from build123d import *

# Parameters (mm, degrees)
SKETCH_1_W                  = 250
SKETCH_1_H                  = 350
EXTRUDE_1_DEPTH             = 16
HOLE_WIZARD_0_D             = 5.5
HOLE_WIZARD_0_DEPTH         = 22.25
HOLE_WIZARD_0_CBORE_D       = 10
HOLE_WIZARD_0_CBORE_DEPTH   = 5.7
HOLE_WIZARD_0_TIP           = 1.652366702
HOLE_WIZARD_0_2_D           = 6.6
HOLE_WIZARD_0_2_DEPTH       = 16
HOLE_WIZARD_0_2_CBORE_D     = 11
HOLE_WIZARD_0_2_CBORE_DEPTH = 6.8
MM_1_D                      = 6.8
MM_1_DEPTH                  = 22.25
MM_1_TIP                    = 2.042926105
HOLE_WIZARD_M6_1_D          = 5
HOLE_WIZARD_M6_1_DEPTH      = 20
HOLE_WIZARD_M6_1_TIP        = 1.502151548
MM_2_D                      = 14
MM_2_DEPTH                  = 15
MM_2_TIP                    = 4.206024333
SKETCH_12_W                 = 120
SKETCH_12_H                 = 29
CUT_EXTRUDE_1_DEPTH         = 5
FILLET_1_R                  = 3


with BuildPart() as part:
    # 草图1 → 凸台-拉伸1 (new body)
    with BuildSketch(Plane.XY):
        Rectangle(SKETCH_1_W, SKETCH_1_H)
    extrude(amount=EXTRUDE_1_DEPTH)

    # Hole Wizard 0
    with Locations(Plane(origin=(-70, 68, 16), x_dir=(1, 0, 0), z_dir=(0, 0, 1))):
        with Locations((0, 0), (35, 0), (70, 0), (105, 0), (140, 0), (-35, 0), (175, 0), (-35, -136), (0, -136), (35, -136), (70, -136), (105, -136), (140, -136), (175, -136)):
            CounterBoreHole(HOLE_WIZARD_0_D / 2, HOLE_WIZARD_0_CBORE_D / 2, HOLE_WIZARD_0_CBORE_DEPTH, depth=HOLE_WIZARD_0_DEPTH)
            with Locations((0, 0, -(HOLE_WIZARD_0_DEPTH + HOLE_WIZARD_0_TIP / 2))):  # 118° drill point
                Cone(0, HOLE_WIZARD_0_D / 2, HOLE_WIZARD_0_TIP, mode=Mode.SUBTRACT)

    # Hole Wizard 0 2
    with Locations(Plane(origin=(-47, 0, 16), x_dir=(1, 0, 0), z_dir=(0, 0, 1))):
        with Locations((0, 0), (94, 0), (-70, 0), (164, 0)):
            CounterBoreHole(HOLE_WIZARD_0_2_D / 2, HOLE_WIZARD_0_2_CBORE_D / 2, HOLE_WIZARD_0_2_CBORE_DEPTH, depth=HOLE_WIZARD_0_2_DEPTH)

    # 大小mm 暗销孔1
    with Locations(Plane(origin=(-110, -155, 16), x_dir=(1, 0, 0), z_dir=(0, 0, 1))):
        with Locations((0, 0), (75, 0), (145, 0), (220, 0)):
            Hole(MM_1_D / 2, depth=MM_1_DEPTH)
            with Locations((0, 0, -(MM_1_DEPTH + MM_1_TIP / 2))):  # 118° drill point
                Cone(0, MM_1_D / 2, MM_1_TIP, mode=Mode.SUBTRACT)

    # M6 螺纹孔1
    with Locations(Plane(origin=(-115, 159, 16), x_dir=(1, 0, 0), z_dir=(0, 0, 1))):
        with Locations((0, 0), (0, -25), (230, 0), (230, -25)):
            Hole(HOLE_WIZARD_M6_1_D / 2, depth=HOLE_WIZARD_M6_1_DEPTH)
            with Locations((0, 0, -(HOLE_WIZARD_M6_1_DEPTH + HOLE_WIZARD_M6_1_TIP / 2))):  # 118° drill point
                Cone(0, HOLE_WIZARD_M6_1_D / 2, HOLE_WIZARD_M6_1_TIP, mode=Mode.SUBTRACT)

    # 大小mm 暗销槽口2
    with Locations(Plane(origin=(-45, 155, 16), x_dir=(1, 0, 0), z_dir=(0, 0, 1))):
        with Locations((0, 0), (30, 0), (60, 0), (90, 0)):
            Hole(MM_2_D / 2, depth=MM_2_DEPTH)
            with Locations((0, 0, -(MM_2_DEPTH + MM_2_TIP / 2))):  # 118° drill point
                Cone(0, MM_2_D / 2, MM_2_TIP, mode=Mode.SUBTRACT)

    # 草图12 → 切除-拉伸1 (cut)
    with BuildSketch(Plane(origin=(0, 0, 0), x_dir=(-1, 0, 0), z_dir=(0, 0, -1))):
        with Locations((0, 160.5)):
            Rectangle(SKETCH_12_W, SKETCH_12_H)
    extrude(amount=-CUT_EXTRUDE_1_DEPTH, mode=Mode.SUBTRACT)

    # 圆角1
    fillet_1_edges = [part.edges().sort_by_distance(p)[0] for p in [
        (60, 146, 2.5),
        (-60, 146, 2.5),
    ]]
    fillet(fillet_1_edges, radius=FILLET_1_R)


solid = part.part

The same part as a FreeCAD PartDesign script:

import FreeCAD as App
import Part
import Sketcher
from FreeCAD import Vector


def edges_at(feature, points):
    """Names of the edges that pass closest to the given points."""
    edges = feature.Shape.Edges
    near = lambda p: min(range(len(edges)), key=lambda i: edges[i].distToShape(Part.Vertex(*p))[0])
    return sorted({f"Edge{near(p) + 1}" for p in points})

doc = App.newDocument("Part")
params = doc.addObject("Spreadsheet::Sheet", "Params")
for row, (alias, value) in enumerate([
    ("sketch1_width", "250 mm"),
    ("sketch1_height", "350 mm"),
    ("pad1_length", "16 mm"),
    ("sketch2_diameter", "5.5 mm"),
    ("hole_diameter", "5.5 mm"),
    ("hole_depth", "22.25 mm"),
    ("hole_cbore_diameter", "10 mm"),
    ("hole_cbore_depth", "5.7 mm"),
    ("sketch3_diameter", "6.6 mm"),
    ("hole2_diameter", "6.6 mm"),
    ("hole2_depth", "16 mm"),
    ("hole2_cbore_diameter", "11 mm"),
    ("hole2_cbore_depth", "6.8 mm"),
    ("sketch4_diameter", "6.8 mm"),
    ("hole3_diameter", "6.8 mm"),
    ("hole3_depth", "22.25 mm"),
    ("sketch5_diameter", "5 mm"),
    ("hole4_diameter", "5 mm"),
    ("hole4_depth", "20 mm"),
    ("sketch6_diameter", "14 mm"),
    ("hole5_diameter", "14 mm"),
    ("hole5_depth", "15 mm"),
    ("sketch7_width", "120 mm"),
    ("sketch7_height", "29 mm"),
    ("pocket1_length", "5 mm"),
    ("fillet_radius", "3 mm"),
], start=1):
    params.set(f"A{row}", alias)
    params.set(f"B{row}", "=" + value)
    params.setAlias(f"B{row}", alias)

body = doc.addObject("PartDesign::Body", "Body")

sketch1 = body.newObject("Sketcher::SketchObject", "Sketch")
sketch1.AttachmentSupport = (doc.getObject("XY_Plane"), [""])
sketch1.MapMode = "FlatFace"
sketch1.addGeometry([
    Part.LineSegment(Vector(-125, 175, 0), Vector(-125, -175, 0)),
    Part.LineSegment(Vector(-125, -175, 0), Vector(125, -175, 0)),
    Part.LineSegment(Vector(125, -175, 0), Vector(125, 175, 0)),
    Part.LineSegment(Vector(125, 175, 0), Vector(-125, 175, 0)),
], False)
sketch1.addConstraint([
    Sketcher.Constraint("Coincident", 0, 2, 1, 1),
    Sketcher.Constraint("Coincident", 1, 2, 2, 1),
    Sketcher.Constraint("Coincident", 2, 2, 3, 1),
    Sketcher.Constraint("Coincident", 3, 2, 0, 1),
    Sketcher.Constraint("Vertical", 0),
    Sketcher.Constraint("Horizontal", 1),
    Sketcher.Constraint("Vertical", 2),
    Sketcher.Constraint("Horizontal", 3),
    Sketcher.Constraint("Symmetric", 0, 2, 2, 2, -1, 1),
    Sketcher.Constraint("DistanceX", 1, 1, 1, 2, 250.0),
    Sketcher.Constraint("DistanceY", 0, 2, 0, 1, 350.0),
])
sketch1.setExpression("Constraints[9]", "Params.sketch1_width")
sketch1.setExpression("Constraints[10]", "Params.sketch1_height")
pad1 = body.newObject("PartDesign::Pad", "Pad")
pad1.Profile = sketch1
pad1.setExpression("Length", "Params.pad1_length")

sketch2 = body.newObject("Sketcher::SketchObject", "Sketch001")
sketch2.AttachmentSupport = (doc.getObject("XY_Plane"), [""])
sketch2.MapMode = "FlatFace"
sketch2.AttachmentOffset = App.Placement(Vector(0, 0, 16), App.Rotation())
sketch2.addGeometry([
    Part.Circle(Vector(-70, 68, 0), Vector(0, 0, 1), 2.8),
    Part.Circle(Vector(-35, 68, 0), Vector(0, 0, 1), 2.8),
    Part.Circle(Vector(0, 68, 0), Vector(0, 0, 1), 2.8),
    Part.Circle(Vector(35, 68, 0), Vector(0, 0, 1), 2.8),
    Part.Circle(Vector(70, 68, 0), Vector(0, 0, 1), 2.8),
    Part.Circle(Vector(-105, 68, 0), Vector(0, 0, 1), 2.8),
    Part.Circle(Vector(105, 68, 0), Vector(0, 0, 1), 2.8),
    Part.Circle(Vector(-105, -68, 0), Vector(0, 0, 1), 2.8),
    Part.Circle(Vector(-70, -68, 0), Vector(0, 0, 1), 2.8),
    Part.Circle(Vector(-35, -68, 0), Vector(0, 0, 1), 2.8),
    Part.Circle(Vector(0, -68, 0), Vector(0, 0, 1), 2.8),
    Part.Circle(Vector(35, -68, 0), Vector(0, 0, 1), 2.8),
    Part.Circle(Vector(70, -68, 0), Vector(0, 0, 1), 2.8),
    Part.Circle(Vector(105, -68, 0), Vector(0, 0, 1), 2.8),
], False)
sketch2.addConstraint([
    Sketcher.Constraint("Equal", 0, 1),
    Sketcher.Constraint("Equal", 1, 2),
    Sketcher.Constraint("Equal", 2, 3),
    Sketcher.Constraint("Equal", 3, 4),
    Sketcher.Constraint("Equal", 4, 5),
    Sketcher.Constraint("Equal", 5, 6),
    Sketcher.Constraint("Equal", 6, 7),
    Sketcher.Constraint("Equal", 7, 8),
    Sketcher.Constraint("Equal", 8, 9),
    Sketcher.Constraint("Equal", 9, 10),
    Sketcher.Constraint("Equal", 10, 11),
    Sketcher.Constraint("Equal", 11, 12),
    Sketcher.Constraint("Equal", 12, 13),
    Sketcher.Constraint("Symmetric", 6, 3, 7, 3, -1, 1),
    Sketcher.Constraint("Symmetric", 4, 3, 8, 3, -1, 1),
    Sketcher.Constraint("Symmetric", 3, 3, 9, 3, -1, 1),
    Sketcher.Constraint("Symmetric", 2, 3, 10, 3, -1, 1),
    Sketcher.Constraint("Symmetric", 1, 3, 11, 3, -1, 1),
    Sketcher.Constraint("Symmetric", 0, 3, 12, 3, -1, 1),
    Sketcher.Constraint("Symmetric", 5, 3, 13, 3, -1, 1),
    Sketcher.Constraint("Symmetric", 1, 3, 3, 3, -2),
    Sketcher.Constraint("Symmetric", 0, 3, 4, 3, -2),
    Sketcher.Constraint("Symmetric", 5, 3, 6, 3, -2),
    Sketcher.Constraint("PointOnObject", 2, 3, -2),
    Sketcher.Constraint("Horizontal", 0, 3, 1, 3),
    Sketcher.Constraint("Horizontal", 1, 3, 2, 3),
    Sketcher.Constraint("Horizontal", 4, 3, 5, 3),
    Sketcher.Constraint("Diameter", 0, 5.5),
    Sketcher.Constraint("DistanceX", 0, 3, -1, 1, 70.0),
    Sketcher.Constraint("DistanceY", -1, 1, 0, 3, 68.0),
    Sketcher.Constraint("DistanceX", 1, 3, -1, 1, 35.0),
    Sketcher.Constraint("DistanceX", 5, 3, -1, 1, 105.0),
])
sketch2.setExpression("Constraints[27]", "Params.sketch2_diameter")
doc.recompute()
hole = body.newObject("PartDesign::Hole", "Hole")
hole.Profile = sketch2
hole.ThreadType = "None"
hole.setExpression("Diameter", "Params.hole_diameter")
hole.DepthType = "Dimension"
hole.setExpression("Depth", "Params.hole_depth")
hole.DrillPoint = "Angled"
hole.DrillPointAngle = 118
hole.HoleCutType = "Counterbore"
hole.setExpression("HoleCutDiameter", "Params.hole_cbore_diameter")
hole.setExpression("HoleCutDepth", "Params.hole_cbore_depth")

sketch3 = body.newObject("Sketcher::SketchObject", "Sketch002")
sketch3.AttachmentSupport = (doc.getObject("XY_Plane"), [""])
sketch3.MapMode = "FlatFace"
sketch3.AttachmentOffset = App.Placement(Vector(0, 0, 16), App.Rotation())
sketch3.addGeometry([
    Part.Circle(Vector(-47, 0, 0), Vector(0, 0, 1), 3.3),
    Part.Circle(Vector(47, 0, 0), Vector(0, 0, 1), 3.3),
    Part.Circle(Vector(-117, 0, 0), Vector(0, 0, 1), 3.3),
    Part.Circle(Vector(117, 0, 0), Vector(0, 0, 1), 3.3),
], False)
sketch3.addConstraint([
    Sketcher.Constraint("Equal", 0, 1),
    Sketcher.Constraint("Equal", 1, 2),
    Sketcher.Constraint("Equal", 2, 3),
    Sketcher.Constraint("Symmetric", 0, 3, 1, 3, -1, 1),
    Sketcher.Constraint("Symmetric", 2, 3, 3, 3, -1, 1),
    Sketcher.Constraint("PointOnObject", 0, 3, -1),
    Sketcher.Constraint("PointOnObject", 2, 3, -1),
    Sketcher.Constraint("Diameter", 0, 6.6),
    Sketcher.Constraint("DistanceX", 0, 3, -1, 1, 47.0),
    Sketcher.Constraint("DistanceX", 2, 3, -1, 1, 117.0),
])
sketch3.setExpression("Constraints[7]", "Params.sketch3_diameter")
doc.recompute()
hole2 = body.newObject("PartDesign::Hole", "Hole001")
hole2.Profile = sketch3
hole2.ThreadType = "None"
hole2.setExpression("Diameter", "Params.hole2_diameter")
hole2.DepthType = "Dimension"
hole2.setExpression("Depth", "Params.hole2_depth")
hole2.DrillPoint = "Flat"
hole2.HoleCutType = "Counterbore"
hole2.setExpression("HoleCutDiameter", "Params.hole2_cbore_diameter")
hole2.setExpression("HoleCutDepth", "Params.hole2_cbore_depth")

sketch4 = body.newObject("Sketcher::SketchObject", "Sketch003")
sketch4.AttachmentSupport = (doc.getObject("XY_Plane"), [""])
sketch4.MapMode = "FlatFace"
sketch4.AttachmentOffset = App.Placement(Vector(0, 0, 16), App.Rotation())
sketch4.addGeometry([
    Part.Circle(Vector(-110, -155, 0), Vector(0, 0, 1), 3.4),
    Part.Circle(Vector(-35, -155, 0), Vector(0, 0, 1), 3.4),
    Part.Circle(Vector(35, -155, 0), Vector(0, 0, 1), 3.4),
    Part.Circle(Vector(110, -155, 0), Vector(0, 0, 1), 3.4),
], False)
sketch4.addConstraint([
    Sketcher.Constraint("Equal", 0, 1),
    Sketcher.Constraint("Equal", 1, 2),
    Sketcher.Constraint("Equal", 2, 3),
    Sketcher.Constraint("Symmetric", 1, 3, 2, 3, -2),
    Sketcher.Constraint("Symmetric", 0, 3, 3, 3, -2),
    Sketcher.Constraint("Horizontal", 0, 3, 1, 3),
    Sketcher.Constraint("Diameter", 0, 6.8),
    Sketcher.Constraint("DistanceX", 0, 3, -1, 1, 110.0),
    Sketcher.Constraint("DistanceY", 0, 3, -1, 1, 155.0),
    Sketcher.Constraint("DistanceX", 1, 3, -1, 1, 35.0),
])
sketch4.setExpression("Constraints[6]", "Params.sketch4_diameter")
doc.recompute()
hole3 = body.newObject("PartDesign::Hole", "Hole002")
hole3.Profile = sketch4
hole3.ThreadType = "None"
hole3.setExpression("Diameter", "Params.hole3_diameter")
hole3.DepthType = "Dimension"
hole3.setExpression("Depth", "Params.hole3_depth")
hole3.DrillPoint = "Angled"
hole3.DrillPointAngle = 118

sketch5 = body.newObject("Sketcher::SketchObject", "Sketch004")
sketch5.AttachmentSupport = (doc.getObject("XY_Plane"), [""])
sketch5.MapMode = "FlatFace"
sketch5.AttachmentOffset = App.Placement(Vector(0, 0, 16), App.Rotation())
sketch5.addGeometry([
    Part.Circle(Vector(-115, 159, 0), Vector(0, 0, 1), 2.5),
    Part.Circle(Vector(-115, 134, 0), Vector(0, 0, 1), 2.5),
    Part.Circle(Vector(115, 159, 0), Vector(0, 0, 1), 2.5),
    Part.Circle(Vector(115, 134, 0), Vector(0, 0, 1), 2.5),
], False)
sketch5.addConstraint([
    Sketcher.Constraint("Equal", 0, 1),
    Sketcher.Constraint("Equal", 1, 2),
    Sketcher.Constraint("Equal", 2, 3),
    Sketcher.Constraint("Symmetric", 0, 3, 2, 3, -2),
    Sketcher.Constraint("Symmetric", 1, 3, 3, 3, -2),
    Sketcher.Constraint("Vertical", 0, 3, 1, 3),
    Sketcher.Constraint("Diameter", 0, 5.0),
    Sketcher.Constraint("DistanceX", 0, 3, -1, 1, 115.0),
    Sketcher.Constraint("DistanceY", -1, 1, 0, 3, 159.0),
    Sketcher.Constraint("DistanceY", -1, 1, 1, 3, 134.0),
])
sketch5.setExpression("Constraints[6]", "Params.sketch5_diameter")
doc.recompute()
hole4 = body.newObject("PartDesign::Hole", "Hole003")
hole4.Profile = sketch5
hole4.ThreadType = "None"
hole4.setExpression("Diameter", "Params.hole4_diameter")
hole4.DepthType = "Dimension"
hole4.setExpression("Depth", "Params.hole4_depth")
hole4.DrillPoint = "Angled"
hole4.DrillPointAngle = 118

sketch6 = body.newObject("Sketcher::SketchObject", "Sketch005")
sketch6.AttachmentSupport = (doc.getObject("XY_Plane"), [""])
sketch6.MapMode = "FlatFace"
sketch6.AttachmentOffset = App.Placement(Vector(0, 0, 16), App.Rotation())
sketch6.addGeometry([
    Part.Circle(Vector(-45, 155, 0), Vector(0, 0, 1), 7),
    Part.Circle(Vector(-15, 155, 0), Vector(0, 0, 1), 7),
    Part.Circle(Vector(15, 155, 0), Vector(0, 0, 1), 7),
    Part.Circle(Vector(45, 155, 0), Vector(0, 0, 1), 7),
], False)
sketch6.addConstraint([
    Sketcher.Constraint("Equal", 0, 1),
    Sketcher.Constraint("Equal", 1, 2),
    Sketcher.Constraint("Equal", 2, 3),
    Sketcher.Constraint("Symmetric", 1, 3, 2, 3, -2),
    Sketcher.Constraint("Symmetric", 0, 3, 3, 3, -2),
    Sketcher.Constraint("Horizontal", 0, 3, 1, 3),
    Sketcher.Constraint("Diameter", 0, 14.0),
    Sketcher.Constraint("DistanceX", 0, 3, -1, 1, 45.0),
    Sketcher.Constraint("DistanceY", -1, 1, 0, 3, 155.0),
    Sketcher.Constraint("DistanceX", 1, 3, -1, 1, 15.0),
])
sketch6.setExpression("Constraints[6]", "Params.sketch6_diameter")
doc.recompute()
hole5 = body.newObject("PartDesign::Hole", "Hole004")
hole5.Profile = sketch6
hole5.ThreadType = "None"
hole5.setExpression("Diameter", "Params.hole5_diameter")
hole5.DepthType = "Dimension"
hole5.setExpression("Depth", "Params.hole5_depth")
hole5.DrillPoint = "Angled"
hole5.DrillPointAngle = 118

sketch7 = body.newObject("Sketcher::SketchObject", "Sketch006")
sketch7.AttachmentSupport = (doc.getObject("XY_Plane"), [""])
sketch7.MapMode = "FlatFace"
sketch7.addGeometry([
    Part.LineSegment(Vector(60, 175, 0), Vector(60, 146, 0)),
    Part.LineSegment(Vector(60, 146, 0), Vector(-60, 146, 0)),
    Part.LineSegment(Vector(-60, 146, 0), Vector(-60, 175, 0)),
    Part.LineSegment(Vector(-60, 175, 0), Vector(60, 175, 0)),
], False)
sketch7.addConstraint([
    Sketcher.Constraint("Coincident", 0, 2, 1, 1),
    Sketcher.Constraint("Coincident", 1, 2, 2, 1),
    Sketcher.Constraint("Coincident", 2, 2, 3, 1),
    Sketcher.Constraint("Coincident", 3, 2, 0, 1),
    Sketcher.Constraint("Vertical", 0),
    Sketcher.Constraint("Horizontal", 1),
    Sketcher.Constraint("Vertical", 2),
    Sketcher.Constraint("Horizontal", 3),
    Sketcher.Constraint("DistanceX", 1, 2, 1, 1, 120.0),
    Sketcher.Constraint("DistanceY", 0, 2, 0, 1, 29.0),
    Sketcher.Constraint("DistanceX", -1, 1, 0, 2, 60.0),
    Sketcher.Constraint("DistanceY", -1, 1, 0, 2, 146.0),
])
sketch7.setExpression("Constraints[8]", "Params.sketch7_width")
sketch7.setExpression("Constraints[9]", "Params.sketch7_height")
pocket1 = body.newObject("PartDesign::Pocket", "Pocket")
pocket1.Profile = sketch7
pocket1.setExpression("Length", "Params.pocket1_length")
pocket1.Reversed = True
doc.recompute()

fillet = body.newObject("PartDesign::Fillet", "Fillet")
fillet.Base = (pocket1, edges_at(pocket1, [(60, 146, 2.5), (-60, 146, 2.5)]))
fillet.setExpression("Radius", "Params.fillet_radius")

doc.recompute()
